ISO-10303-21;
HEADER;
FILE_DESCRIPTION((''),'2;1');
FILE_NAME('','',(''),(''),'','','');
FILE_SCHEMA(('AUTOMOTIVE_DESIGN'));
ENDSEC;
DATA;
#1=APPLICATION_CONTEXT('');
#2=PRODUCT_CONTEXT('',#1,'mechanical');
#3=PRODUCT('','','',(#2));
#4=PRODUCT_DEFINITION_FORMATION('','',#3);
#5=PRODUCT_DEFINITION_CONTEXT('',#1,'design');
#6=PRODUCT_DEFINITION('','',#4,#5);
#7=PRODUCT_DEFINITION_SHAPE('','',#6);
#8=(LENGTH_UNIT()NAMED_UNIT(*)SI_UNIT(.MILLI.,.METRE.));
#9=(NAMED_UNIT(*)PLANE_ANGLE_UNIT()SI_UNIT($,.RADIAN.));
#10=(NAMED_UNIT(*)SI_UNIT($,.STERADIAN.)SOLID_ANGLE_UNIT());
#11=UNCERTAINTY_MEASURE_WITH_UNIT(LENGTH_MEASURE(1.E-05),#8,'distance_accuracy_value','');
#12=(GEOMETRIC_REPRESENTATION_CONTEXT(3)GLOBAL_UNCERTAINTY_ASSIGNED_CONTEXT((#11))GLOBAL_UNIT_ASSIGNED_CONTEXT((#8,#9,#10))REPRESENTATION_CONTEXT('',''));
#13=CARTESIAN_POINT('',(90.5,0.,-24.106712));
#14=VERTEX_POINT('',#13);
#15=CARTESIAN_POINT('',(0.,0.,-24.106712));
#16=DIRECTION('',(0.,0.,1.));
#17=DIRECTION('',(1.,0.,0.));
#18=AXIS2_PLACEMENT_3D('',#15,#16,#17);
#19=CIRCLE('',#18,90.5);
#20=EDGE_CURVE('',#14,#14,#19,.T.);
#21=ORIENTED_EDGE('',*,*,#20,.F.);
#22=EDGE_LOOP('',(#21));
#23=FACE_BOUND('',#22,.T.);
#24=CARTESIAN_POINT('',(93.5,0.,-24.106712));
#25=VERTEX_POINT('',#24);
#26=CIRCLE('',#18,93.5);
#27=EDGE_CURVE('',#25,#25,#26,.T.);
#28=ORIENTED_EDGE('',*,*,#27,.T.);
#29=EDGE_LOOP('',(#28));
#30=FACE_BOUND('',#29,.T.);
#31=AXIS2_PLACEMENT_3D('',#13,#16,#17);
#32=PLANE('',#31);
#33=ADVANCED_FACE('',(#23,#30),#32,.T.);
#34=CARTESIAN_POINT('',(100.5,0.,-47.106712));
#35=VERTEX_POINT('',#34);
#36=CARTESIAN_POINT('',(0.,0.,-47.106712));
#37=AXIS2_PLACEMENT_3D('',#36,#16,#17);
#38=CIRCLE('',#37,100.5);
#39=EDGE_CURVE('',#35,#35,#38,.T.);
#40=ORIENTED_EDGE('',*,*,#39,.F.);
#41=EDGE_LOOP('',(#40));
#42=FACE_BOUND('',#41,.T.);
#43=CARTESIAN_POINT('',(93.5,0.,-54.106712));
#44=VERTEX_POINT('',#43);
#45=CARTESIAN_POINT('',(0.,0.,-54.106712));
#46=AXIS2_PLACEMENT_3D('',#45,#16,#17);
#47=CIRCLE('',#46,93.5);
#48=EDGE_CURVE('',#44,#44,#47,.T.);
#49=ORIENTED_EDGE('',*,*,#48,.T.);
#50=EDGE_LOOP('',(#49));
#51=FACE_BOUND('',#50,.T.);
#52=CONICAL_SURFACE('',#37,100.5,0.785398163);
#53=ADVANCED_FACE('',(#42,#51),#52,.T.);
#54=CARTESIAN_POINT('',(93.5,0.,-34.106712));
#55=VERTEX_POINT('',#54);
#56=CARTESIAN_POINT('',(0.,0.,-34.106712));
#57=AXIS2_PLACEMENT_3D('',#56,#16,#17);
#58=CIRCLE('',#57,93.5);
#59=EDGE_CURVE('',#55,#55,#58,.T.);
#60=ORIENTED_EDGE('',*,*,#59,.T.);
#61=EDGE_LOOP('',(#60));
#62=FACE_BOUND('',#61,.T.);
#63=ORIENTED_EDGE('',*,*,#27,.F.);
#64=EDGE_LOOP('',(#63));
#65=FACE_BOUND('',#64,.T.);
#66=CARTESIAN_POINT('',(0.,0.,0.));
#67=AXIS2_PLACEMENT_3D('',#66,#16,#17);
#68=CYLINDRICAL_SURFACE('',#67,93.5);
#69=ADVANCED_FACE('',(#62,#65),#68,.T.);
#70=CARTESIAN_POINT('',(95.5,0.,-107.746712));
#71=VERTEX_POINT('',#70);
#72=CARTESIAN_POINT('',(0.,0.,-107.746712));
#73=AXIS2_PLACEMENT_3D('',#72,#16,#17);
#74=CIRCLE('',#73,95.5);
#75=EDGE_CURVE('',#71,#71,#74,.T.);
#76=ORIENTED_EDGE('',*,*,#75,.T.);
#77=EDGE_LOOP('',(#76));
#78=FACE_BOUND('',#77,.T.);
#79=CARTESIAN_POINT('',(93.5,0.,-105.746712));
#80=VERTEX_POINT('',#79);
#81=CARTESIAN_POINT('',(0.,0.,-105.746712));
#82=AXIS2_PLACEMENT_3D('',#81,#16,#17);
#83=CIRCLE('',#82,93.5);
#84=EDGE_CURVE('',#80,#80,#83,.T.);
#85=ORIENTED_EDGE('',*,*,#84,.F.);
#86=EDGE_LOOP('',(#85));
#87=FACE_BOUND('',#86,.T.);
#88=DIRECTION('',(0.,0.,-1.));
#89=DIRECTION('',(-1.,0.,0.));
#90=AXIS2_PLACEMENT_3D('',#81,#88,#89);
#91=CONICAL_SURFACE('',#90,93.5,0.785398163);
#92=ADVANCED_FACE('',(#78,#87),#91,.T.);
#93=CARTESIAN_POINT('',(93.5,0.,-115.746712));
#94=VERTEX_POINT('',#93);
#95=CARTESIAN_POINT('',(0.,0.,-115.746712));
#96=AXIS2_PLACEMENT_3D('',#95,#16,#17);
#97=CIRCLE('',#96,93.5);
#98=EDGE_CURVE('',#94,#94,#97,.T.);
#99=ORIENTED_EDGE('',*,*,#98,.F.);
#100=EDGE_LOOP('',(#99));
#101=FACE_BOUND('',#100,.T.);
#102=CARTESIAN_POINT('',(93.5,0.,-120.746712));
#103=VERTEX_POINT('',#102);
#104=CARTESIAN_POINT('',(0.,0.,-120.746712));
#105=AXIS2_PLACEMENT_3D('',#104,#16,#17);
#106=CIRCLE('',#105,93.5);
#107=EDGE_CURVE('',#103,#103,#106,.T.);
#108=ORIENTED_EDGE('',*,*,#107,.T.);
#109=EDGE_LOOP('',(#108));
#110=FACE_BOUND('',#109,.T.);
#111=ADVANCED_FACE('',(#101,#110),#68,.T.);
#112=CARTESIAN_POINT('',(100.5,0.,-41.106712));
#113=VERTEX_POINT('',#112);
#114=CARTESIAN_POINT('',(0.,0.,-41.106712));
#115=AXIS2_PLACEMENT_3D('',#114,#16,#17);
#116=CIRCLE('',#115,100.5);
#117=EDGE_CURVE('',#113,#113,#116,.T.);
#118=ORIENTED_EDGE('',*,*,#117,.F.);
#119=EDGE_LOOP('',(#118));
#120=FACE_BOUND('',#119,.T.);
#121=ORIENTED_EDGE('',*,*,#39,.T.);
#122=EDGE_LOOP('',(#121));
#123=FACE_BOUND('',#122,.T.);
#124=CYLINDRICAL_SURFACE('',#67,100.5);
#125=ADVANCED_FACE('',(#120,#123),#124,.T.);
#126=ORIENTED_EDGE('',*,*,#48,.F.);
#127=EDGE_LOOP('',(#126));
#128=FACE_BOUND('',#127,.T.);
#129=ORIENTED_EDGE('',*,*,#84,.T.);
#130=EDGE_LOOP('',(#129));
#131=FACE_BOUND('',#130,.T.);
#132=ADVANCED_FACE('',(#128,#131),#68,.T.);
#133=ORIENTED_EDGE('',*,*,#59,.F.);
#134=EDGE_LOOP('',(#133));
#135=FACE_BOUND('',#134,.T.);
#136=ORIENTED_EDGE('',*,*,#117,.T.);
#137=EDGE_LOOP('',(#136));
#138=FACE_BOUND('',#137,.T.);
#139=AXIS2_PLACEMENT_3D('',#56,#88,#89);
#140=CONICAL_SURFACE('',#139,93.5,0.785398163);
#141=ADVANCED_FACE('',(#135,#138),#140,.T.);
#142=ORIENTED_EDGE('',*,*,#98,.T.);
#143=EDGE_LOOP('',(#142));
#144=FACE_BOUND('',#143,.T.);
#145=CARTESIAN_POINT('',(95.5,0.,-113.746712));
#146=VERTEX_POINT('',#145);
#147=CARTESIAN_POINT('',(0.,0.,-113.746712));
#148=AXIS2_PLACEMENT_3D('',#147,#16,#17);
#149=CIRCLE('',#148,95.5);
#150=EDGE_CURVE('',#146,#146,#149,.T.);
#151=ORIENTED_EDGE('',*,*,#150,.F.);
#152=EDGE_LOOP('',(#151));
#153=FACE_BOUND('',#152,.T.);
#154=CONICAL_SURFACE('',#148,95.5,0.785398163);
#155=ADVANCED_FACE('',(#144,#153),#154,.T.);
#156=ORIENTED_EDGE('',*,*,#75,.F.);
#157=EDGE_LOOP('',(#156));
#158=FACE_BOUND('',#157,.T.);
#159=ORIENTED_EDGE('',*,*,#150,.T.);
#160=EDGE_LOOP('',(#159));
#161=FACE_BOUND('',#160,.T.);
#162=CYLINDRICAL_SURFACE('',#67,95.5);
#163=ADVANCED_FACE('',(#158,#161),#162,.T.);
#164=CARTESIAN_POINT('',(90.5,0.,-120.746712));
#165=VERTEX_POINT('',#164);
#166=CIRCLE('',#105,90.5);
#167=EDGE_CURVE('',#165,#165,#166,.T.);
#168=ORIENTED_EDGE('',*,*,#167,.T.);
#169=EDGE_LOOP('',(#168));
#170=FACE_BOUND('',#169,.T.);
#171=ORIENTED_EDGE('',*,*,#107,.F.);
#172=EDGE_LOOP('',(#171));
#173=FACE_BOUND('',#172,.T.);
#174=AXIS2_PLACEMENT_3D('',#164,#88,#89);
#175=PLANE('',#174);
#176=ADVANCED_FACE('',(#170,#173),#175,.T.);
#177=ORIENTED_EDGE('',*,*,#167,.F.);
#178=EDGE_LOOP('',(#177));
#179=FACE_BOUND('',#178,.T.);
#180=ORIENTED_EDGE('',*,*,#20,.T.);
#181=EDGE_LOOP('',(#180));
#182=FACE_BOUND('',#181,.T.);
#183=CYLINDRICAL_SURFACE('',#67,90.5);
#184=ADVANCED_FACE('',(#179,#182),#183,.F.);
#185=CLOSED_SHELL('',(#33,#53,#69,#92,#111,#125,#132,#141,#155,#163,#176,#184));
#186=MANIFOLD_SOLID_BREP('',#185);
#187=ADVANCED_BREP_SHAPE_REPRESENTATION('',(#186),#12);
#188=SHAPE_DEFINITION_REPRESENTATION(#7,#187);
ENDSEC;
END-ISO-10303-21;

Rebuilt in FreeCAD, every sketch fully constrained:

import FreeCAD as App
import Part
import Sketcher
Q = App.Units.Quantity


def add_polygon(sketch, points):
    """Adds a closed chain of lines whose ends are joined by coincident constraints."""
    first, n = sketch.GeometryCount, len(points)
    for a, b in zip(points, points[1:] + points[:1]):
        sketch.addGeometry(Part.LineSegment(App.Vector(*a, 0), App.Vector(*b, 0)), False)
    for i in range(n):
        sketch.addConstraint(Sketcher.Constraint("Coincident", first + i, 2, first + (i + 1) % n, 1))

doc = App.newDocument("Part")
body = doc.addObject("PartDesign::Body", "Body")

# Sketch on XZ plane
sketch1 = body.newObject("Sketcher::SketchObject", "Sketch")
sketch1.AttachmentSupport = (doc.getObject("XZ_Plane"), [""])
sketch1.MapMode = "FlatFace"
add_polygon(sketch1, [(93.5, -120.7), (90.5, -120.7), (90.5, -24.1), (93.5, -24.1), (93.5, -34.1), (100.5, -41.1), (100.5, -47.1), (93.5, -54.1), (93.5, -105.7), (95.5, -107.7), (95.5, -113.7), (93.5, -115.7)])  # lines 0-11
sketch1.addConstraint([
    Sketcher.Constraint("Horizontal", 0),
    Sketcher.Constraint("Vertical", 1),
    Sketcher.Constraint("Horizontal", 2),
    Sketcher.Constraint("Vertical", 3),
    Sketcher.Constraint("Vertical", 5),
    Sketcher.Constraint("Vertical", 7),
    Sketcher.Constraint("Vertical", 9),
    Sketcher.Constraint("Vertical", 11),
    Sketcher.Constraint("Perpendicular", 4, 6),
    Sketcher.Constraint("Perpendicular", 6, 8),
    Sketcher.Constraint("Perpendicular", 8, 10),
    Sketcher.Constraint("Vertical", 3, 2, 6, 2),
    Sketcher.Constraint("Vertical", 7, 2, 10, 2),
    Sketcher.Constraint("Equal", 5, 9),
    Sketcher.Constraint("Equal", 4, 6),
    Sketcher.Constraint("DistanceX", 0, 2, 0, 1, Q("3 mm")),
    Sketcher.Constraint("DistanceY", 3, 2, 3, 1, Q("10 mm")),
    Sketcher.Constraint("DistanceY", 5, 2, 5, 1, Q("6 mm")),
    Sketcher.Constraint("DistanceY", 11, 2, 11, 1, Q("5 mm")),
    Sketcher.Constraint("DistanceX", 3, 2, 4, 2, Q("7 mm")),
    Sketcher.Constraint("DistanceY", 0, 2, 7, 2, Q("15 mm")),
    Sketcher.Constraint("DistanceY", 1, 1, 1, 2, Q("96.64 mm")),
    Sketcher.Constraint("DistanceX", -1, 1, 0, 2, Q("90.5 mm")),
    Sketcher.Constraint("DistanceY", 0, 2, -1, 1, Q("120.746712 mm")),
])
revolution = body.newObject("PartDesign::Revolution", "Revolution")
revolution.Profile = sketch1
revolution.ReferenceAxis = (sketch1, ["V_Axis"])
revolution.Angle = 360

doc.recompute()
